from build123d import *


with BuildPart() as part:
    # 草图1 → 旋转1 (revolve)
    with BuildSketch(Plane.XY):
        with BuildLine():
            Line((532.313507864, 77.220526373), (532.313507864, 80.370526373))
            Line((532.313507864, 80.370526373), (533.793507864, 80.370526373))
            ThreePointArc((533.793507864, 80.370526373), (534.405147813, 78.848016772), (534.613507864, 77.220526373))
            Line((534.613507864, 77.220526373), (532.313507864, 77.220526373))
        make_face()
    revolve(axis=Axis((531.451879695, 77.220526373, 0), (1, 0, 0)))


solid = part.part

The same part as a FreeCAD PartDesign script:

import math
import FreeCAD as App
import Part
import Sketcher
from FreeCAD import Vector

doc = App.newDocument("Part")
body = doc.addObject("PartDesign::Body", "Body")

# Sketch on XY plane
sketch1 = body.newObject("Sketcher::SketchObject", "Sketch")
sketch1.AttachmentSupport = (doc.getObject("XY_Plane"), [""])
sketch1.MapMode = "FlatFace"
sketch1.addGeometry([
    Part.LineSegment(Vector(532.3, 80.4, 0), Vector(532.3, 77.2, 0)),
    Part.LineSegment(Vector(532.3, 77.2, 0), Vector(534.6, 77.2, 0)),
    Part.ArcOfCircle(Part.Circle(Vector(528.2, 77.2, 0), Vector(0, 0, 1), 6.5), math.radians(0), math.radians(29)),
    Part.LineSegment(Vector(533.8, 80.4, 0), Vector(532.3, 80.4, 0)),
], False)
sketch1.addGeometry(Part.LineSegment(Vector(528.2, 77.2, 0), Vector(534.6, 77.2, 0)), True)  # axis
sketch1.addConstraint([
    Sketcher.Constraint("Coincident", 0, 2, 1, 1),
    Sketcher.Constraint("Coincident", 1, 2, 2, 1),
    Sketcher.Constraint("Coincident", 2, 2, 3, 1),
    Sketcher.Constraint("Coincident", 3, 2, 0, 1),
    Sketcher.Constraint("Vertical", 0),
    Sketcher.Constraint("Horizontal", 1),
    Sketcher.Constraint("Horizontal", 3),
    Sketcher.Constraint("Horizontal", 4),
    Sketcher.Constraint("Coincident", 4, 1, 2, 3),
    Sketcher.Constraint("Coincident", 4, 2, 1, 2),
    Sketcher.Constraint("DistanceX", 1, 1, 1, 2, 2.3),
    Sketcher.Constraint("DistanceX", 3, 2, 3, 1, 1.48),
    Sketcher.Constraint("DistanceY", 0, 2, 0, 1, 3.15),
    Sketcher.Constraint("DistanceX", -1, 1, 2, 3, 528.153203),
    Sketcher.Constraint("DistanceY", -1, 1, 2, 3, 77.220526),
])
revolution = body.newObject("PartDesign::Revolution", "Revolution")
revolution.Profile = sketch1
revolution.ReferenceAxis = (sketch1, ["Axis0"])
revolution.Angle = 360

doc.recompute()
